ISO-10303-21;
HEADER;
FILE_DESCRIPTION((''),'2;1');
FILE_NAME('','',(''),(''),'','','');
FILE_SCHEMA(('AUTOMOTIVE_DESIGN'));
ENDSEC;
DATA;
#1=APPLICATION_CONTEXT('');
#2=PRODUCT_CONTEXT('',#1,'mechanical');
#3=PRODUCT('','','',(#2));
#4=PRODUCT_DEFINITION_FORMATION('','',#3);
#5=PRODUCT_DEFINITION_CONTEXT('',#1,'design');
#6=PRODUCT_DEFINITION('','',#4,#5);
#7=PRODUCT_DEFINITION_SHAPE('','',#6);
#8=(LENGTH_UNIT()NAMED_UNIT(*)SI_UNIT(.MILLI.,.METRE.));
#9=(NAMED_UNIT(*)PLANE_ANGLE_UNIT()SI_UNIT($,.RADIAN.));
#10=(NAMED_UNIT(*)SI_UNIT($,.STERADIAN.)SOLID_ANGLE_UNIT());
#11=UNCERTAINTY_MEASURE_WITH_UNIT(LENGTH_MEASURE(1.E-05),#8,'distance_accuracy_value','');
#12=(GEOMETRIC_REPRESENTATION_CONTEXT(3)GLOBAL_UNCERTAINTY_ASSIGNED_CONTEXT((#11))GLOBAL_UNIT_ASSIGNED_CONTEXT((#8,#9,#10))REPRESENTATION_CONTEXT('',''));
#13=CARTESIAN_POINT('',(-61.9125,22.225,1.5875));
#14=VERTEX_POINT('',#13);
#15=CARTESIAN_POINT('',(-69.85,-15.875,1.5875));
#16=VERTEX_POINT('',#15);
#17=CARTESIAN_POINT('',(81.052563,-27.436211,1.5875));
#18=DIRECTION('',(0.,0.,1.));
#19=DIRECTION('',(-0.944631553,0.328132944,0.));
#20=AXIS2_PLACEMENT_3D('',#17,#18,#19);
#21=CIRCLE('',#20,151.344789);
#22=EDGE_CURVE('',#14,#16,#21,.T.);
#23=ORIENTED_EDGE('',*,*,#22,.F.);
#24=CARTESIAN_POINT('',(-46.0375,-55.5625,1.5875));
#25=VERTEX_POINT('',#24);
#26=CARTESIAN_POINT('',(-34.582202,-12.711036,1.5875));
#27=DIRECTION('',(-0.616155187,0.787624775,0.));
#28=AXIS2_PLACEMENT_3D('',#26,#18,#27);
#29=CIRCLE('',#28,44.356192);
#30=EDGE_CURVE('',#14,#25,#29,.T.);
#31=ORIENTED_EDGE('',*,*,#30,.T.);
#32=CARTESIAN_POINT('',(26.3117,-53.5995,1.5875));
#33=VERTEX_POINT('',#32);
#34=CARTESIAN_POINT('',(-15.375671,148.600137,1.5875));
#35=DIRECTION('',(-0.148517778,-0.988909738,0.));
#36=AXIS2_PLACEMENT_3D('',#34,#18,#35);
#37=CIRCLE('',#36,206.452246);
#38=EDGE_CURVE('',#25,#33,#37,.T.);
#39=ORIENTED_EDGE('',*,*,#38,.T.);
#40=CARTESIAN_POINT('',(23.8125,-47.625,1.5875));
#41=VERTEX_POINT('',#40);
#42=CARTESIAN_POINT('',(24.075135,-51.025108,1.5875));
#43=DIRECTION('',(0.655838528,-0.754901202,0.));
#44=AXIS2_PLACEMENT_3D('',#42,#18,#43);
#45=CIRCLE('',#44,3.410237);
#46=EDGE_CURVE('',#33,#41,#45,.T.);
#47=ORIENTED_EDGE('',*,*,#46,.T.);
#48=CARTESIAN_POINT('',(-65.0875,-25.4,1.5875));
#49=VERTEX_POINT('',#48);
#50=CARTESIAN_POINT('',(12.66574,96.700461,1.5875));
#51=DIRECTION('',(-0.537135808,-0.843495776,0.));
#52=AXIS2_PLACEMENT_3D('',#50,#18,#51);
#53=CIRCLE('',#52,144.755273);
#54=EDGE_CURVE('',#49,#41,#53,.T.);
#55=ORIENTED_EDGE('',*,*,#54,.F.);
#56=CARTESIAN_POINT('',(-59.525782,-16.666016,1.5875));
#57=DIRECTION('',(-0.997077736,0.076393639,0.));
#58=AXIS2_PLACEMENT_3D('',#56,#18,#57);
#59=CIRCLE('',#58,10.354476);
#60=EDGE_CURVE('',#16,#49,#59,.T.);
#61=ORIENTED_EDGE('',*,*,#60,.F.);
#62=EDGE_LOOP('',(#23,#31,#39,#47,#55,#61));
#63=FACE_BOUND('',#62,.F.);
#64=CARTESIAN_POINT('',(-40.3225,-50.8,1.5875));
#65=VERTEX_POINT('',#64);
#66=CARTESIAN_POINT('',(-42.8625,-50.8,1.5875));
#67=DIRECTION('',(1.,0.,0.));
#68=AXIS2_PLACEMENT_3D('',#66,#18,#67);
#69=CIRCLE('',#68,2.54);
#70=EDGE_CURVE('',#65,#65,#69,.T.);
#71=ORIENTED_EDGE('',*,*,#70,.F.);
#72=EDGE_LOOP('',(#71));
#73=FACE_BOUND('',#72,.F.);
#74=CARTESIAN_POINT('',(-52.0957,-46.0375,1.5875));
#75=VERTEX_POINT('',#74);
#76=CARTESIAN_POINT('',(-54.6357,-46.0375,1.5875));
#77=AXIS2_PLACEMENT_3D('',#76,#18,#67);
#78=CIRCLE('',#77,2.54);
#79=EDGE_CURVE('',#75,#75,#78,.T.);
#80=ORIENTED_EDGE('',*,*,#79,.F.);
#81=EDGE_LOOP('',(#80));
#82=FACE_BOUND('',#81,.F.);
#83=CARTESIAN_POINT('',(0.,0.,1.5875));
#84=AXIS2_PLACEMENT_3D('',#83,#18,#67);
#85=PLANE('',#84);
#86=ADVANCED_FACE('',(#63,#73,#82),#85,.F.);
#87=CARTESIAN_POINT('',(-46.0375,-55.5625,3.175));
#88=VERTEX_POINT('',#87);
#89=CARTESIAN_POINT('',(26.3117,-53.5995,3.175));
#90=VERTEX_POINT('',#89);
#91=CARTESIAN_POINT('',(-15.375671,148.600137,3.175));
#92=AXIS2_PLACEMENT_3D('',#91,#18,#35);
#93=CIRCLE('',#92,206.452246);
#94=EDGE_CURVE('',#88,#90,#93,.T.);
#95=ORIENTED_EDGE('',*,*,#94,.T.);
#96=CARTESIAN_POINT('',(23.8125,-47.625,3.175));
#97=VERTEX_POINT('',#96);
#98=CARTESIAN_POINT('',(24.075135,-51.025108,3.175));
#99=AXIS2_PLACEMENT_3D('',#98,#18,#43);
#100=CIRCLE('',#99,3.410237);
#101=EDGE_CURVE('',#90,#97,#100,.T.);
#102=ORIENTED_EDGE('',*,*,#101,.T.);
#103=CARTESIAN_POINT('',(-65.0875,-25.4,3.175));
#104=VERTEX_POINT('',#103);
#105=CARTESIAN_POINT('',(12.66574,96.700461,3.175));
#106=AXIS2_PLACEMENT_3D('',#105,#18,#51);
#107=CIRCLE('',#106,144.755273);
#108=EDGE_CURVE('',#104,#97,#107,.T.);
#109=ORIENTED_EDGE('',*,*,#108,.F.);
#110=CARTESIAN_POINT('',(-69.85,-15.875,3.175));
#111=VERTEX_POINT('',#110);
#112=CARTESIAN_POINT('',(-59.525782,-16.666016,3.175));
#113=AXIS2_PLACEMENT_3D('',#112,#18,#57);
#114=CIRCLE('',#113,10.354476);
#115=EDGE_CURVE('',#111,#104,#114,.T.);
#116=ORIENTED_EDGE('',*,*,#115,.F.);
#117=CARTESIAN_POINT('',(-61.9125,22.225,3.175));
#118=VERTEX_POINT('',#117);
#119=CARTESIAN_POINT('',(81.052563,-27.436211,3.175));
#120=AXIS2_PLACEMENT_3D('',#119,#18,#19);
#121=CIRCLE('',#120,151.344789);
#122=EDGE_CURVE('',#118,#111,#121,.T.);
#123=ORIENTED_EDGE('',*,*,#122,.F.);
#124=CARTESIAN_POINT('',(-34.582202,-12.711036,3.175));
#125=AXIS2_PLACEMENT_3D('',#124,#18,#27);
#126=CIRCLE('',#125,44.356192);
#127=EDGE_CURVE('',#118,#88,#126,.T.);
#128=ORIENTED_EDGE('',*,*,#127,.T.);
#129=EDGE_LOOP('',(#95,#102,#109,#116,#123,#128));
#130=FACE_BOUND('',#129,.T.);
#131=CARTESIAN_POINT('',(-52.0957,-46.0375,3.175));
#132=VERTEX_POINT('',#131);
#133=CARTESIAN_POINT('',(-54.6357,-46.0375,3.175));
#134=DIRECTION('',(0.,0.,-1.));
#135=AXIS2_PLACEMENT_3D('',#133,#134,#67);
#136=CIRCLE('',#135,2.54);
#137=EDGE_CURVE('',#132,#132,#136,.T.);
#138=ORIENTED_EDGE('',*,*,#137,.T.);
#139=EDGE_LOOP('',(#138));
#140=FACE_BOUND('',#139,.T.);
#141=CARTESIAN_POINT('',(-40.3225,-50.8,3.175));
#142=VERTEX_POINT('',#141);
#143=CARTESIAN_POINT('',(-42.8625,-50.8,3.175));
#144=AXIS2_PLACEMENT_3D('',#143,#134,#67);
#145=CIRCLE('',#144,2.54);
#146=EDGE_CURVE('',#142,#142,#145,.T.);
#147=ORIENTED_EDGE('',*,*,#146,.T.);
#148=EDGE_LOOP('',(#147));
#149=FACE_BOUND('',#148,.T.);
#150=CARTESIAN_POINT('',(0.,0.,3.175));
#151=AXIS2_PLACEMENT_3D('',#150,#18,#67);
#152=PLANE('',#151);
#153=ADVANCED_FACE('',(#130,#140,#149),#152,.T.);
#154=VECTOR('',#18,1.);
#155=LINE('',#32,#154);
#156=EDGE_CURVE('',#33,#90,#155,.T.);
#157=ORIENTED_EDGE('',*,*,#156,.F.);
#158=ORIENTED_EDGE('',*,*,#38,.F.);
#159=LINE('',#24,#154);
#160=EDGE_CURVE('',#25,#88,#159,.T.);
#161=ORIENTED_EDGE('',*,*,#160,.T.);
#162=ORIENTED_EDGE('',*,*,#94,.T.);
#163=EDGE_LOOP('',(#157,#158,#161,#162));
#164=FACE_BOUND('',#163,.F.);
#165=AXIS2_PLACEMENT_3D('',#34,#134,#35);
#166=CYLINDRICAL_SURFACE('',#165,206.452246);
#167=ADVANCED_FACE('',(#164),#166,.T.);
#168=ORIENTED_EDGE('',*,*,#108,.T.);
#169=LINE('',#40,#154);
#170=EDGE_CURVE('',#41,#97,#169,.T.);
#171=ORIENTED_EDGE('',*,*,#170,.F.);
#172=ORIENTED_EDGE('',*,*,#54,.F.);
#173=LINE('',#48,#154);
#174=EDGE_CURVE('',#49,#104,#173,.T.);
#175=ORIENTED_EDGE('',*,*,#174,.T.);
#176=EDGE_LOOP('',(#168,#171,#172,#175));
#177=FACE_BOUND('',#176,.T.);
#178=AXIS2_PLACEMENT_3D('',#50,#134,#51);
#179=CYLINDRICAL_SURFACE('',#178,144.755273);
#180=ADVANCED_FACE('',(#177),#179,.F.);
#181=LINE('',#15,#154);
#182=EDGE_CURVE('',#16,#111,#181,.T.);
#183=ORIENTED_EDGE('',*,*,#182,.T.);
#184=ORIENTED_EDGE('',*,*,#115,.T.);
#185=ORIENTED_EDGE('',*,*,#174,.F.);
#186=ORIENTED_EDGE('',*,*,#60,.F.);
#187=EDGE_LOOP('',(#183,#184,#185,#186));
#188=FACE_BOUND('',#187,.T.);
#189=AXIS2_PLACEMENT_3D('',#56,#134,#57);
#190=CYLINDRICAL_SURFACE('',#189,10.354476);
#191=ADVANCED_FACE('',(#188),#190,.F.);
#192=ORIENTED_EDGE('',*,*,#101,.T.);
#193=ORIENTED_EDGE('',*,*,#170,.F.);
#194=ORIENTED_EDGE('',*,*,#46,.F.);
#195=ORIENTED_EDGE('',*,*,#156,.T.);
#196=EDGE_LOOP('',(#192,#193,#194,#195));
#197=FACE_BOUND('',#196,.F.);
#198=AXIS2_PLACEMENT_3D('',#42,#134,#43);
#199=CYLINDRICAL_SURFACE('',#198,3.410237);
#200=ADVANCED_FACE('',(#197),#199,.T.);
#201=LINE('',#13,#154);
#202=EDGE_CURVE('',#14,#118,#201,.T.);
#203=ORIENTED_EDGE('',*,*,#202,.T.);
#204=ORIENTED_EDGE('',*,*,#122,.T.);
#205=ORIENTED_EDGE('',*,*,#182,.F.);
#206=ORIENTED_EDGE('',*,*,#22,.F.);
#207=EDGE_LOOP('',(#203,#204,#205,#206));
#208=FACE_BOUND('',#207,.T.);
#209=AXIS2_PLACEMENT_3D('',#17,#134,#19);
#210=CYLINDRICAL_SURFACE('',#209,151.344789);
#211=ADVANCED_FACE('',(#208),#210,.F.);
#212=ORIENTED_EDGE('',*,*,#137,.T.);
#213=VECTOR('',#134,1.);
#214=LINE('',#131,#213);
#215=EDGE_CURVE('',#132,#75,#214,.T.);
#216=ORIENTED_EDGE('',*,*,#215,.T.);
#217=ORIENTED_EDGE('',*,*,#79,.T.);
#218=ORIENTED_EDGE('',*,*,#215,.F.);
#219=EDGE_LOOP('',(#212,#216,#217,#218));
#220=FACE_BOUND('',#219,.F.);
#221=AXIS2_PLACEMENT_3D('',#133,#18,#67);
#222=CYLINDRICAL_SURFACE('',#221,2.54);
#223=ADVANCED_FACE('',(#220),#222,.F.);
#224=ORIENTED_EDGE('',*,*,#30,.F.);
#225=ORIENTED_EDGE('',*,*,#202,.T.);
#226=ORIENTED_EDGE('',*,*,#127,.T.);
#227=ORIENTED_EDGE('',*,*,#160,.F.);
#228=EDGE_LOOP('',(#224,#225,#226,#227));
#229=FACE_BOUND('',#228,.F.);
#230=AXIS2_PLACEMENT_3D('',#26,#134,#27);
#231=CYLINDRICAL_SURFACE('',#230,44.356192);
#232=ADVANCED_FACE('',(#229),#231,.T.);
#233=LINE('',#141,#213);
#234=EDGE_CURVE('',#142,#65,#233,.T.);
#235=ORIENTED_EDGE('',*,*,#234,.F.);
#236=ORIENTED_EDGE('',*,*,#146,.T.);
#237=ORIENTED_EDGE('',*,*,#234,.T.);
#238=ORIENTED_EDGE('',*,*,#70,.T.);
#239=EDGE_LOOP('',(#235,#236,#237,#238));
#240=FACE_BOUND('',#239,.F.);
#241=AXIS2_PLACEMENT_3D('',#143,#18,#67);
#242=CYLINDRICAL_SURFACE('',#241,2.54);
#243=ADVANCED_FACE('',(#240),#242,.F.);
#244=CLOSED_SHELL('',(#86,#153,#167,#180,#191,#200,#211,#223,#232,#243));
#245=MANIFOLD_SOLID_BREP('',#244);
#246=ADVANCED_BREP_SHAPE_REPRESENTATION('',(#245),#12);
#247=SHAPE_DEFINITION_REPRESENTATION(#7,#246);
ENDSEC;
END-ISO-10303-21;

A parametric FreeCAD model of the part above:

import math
import FreeCAD as App
import Part
import Sketcher

V = App.Vector
Q = App.Units.Quantity

doc = App.newDocument("Part")
params = doc.addObject("Spreadsheet::Sheet", "Params")
for row, (alias, value) in enumerate([
    ("pad1_length", "0.0625 in"),
    ("sketch2_diameter", "0.2 in"),
    ("pocket1_length", "0.0625 in"),
], start=1):
    params.set(f"A{row}", alias)
    params.set(f"B{row}", "=" + value)
    params.setAlias(f"B{row}", alias)

body = doc.addObject("PartDesign::Body", "Body")

# Sketch on XY plane
sketch1 = body.newObject("Sketcher::SketchObject", "Sketch")
sketch1.AttachmentSupport = (doc.getObject("XY_Plane"), [""])
sketch1.MapMode = "FlatFace"
sketch1.AttachmentOffset = App.Placement(V(0, 0, 0.0625 * 25.4), App.Rotation())
sketch1.addGeometry([
    Part.ArcOfCircle(Part.Circle(V(12.7, 96.7, 0), V(0, 0, 1), 144.8), math.radians(-122), math.radians(-86)),  # 0
    Part.ArcOfCircle(Part.Circle(V(-59.5, -16.7, 0), V(0, 0, 1), 10.4), math.radians(176), math.radians(238)),  # 1
    Part.ArcOfCircle(Part.Circle(V(81.1, -27.4, 0), V(0, 0, 1), 151.3), math.radians(160.84), math.radians(175.62)),  # 2
    Part.ArcOfCircle(Part.Circle(V(-34.6, -12.7, 0), V(0, 0, 1), 44.4), math.radians(128), math.radians(255)),  # 3
    Part.ArcOfCircle(Part.Circle(V(-15.4, 148.6, 0), V(0, 0, 1), 206.5), math.radians(-99), math.radians(-78)),  # 4
    Part.ArcOfCircle(Part.Circle(V(24.1, -51, 0), V(0, 0, 1), 3.4), math.radians(-49), math.radians(94)),  # 5
], False)
sketch1.addConstraint([
    Sketcher.Constraint("Tangent", 0, 1, 1, 2),
    Sketcher.Constraint("Tangent", 1, 1, 2, 2),
    Sketcher.Constraint("Coincident", 2, 1, 3, 1),
    Sketcher.Constraint("Coincident", 3, 2, 4, 1),
    Sketcher.Constraint("Coincident", 4, 2, 5, 1),
    Sketcher.Constraint("Tangent", 5, 2, 0, 2),
    Sketcher.Constraint("DistanceY", 0, 1, -1, 1, Q("1 in")),
    Sketcher.Constraint("Radius", 3, Q("1.7463 in")),
    Sketcher.Constraint("DistanceY", 1, 1, 2, 1, Q("1.5 in")),
    Sketcher.Constraint("DistanceX", 1, 1, -1, 1, Q("2.75 in")),
    Sketcher.Constraint("Radius", 0, Q("144.7554 mm")),
    Sketcher.Constraint("Radius", 1, Q("10.3546 mm")),
    Sketcher.Constraint("Radius", 2, Q("151.344 mm")),
    Sketcher.Constraint("Radius", 4, Q("206.4522 mm")),
    Sketcher.Constraint("Radius", 5, Q("3.4103 mm")),
    Sketcher.Constraint("DistanceX", 0, 1, 3, 2, Q("0.75 in")),
    Sketcher.Constraint("DistanceX", 3, 2, 5, 2, Q("2.75 in")),
    Sketcher.Constraint("DistanceY", 1, 1, -1, 1, Q("0.625 in")),
    Sketcher.Constraint("DistanceX", 2, 1, -1, 1, Q("2.4375 in")),
    Sketcher.Constraint("DistanceY", 3, 2, -1, 1, Q("2.1875 in")),
    Sketcher.Constraint("DistanceX", 4, 3, 0, 3, Q("1.104 in")),
])
pad1 = body.newObject("PartDesign::Pad", "Pad")
pad1.Profile = sketch1
pad1.setExpression("Length", "Params.pad1_length")

# Sketch on XY plane
sketch2 = body.newObject("Sketcher::SketchObject", "Sketch001")
sketch2.AttachmentSupport = (doc.getObject("XY_Plane"), [""])
sketch2.MapMode = "FlatFace"
sketch2.AttachmentOffset = App.Placement(V(0, 0, 0.125 * 25.4), App.Rotation())
sketch2.addGeometry([
    Part.Circle(V(-42.9, -50.8, 0), V(0, 0, 1), 2.5),
    Part.Circle(V(-54.6, -46, 0), V(0, 0, 1), 2.5),
], False)
sketch2.addConstraint([
    Sketcher.Constraint("Equal", 0, 1),
    Sketcher.Constraint("Diameter", 0, Q("0.2 in")),
    Sketcher.Constraint("DistanceY", 0, 3, -1, 1, Q("2 in")),
    Sketcher.Constraint("DistanceX", 0, 3, -1, 1, Q("1.6875 in")),
    Sketcher.Constraint("DistanceX", 1, 3, -1, 1, Q("2.151 in")),
    Sketcher.Constraint("DistanceY", 1, 3, -1, 1, Q("1.8125 in")),
])
sketch2.setExpression("Constraints[1]", "Params.sketch2_diameter")
pocket1 = body.newObject("PartDesign::Pocket", "Pocket")
pocket1.Profile = sketch2
pocket1.setExpression("Length", "Params.pocket1_length")

doc.recompute()
